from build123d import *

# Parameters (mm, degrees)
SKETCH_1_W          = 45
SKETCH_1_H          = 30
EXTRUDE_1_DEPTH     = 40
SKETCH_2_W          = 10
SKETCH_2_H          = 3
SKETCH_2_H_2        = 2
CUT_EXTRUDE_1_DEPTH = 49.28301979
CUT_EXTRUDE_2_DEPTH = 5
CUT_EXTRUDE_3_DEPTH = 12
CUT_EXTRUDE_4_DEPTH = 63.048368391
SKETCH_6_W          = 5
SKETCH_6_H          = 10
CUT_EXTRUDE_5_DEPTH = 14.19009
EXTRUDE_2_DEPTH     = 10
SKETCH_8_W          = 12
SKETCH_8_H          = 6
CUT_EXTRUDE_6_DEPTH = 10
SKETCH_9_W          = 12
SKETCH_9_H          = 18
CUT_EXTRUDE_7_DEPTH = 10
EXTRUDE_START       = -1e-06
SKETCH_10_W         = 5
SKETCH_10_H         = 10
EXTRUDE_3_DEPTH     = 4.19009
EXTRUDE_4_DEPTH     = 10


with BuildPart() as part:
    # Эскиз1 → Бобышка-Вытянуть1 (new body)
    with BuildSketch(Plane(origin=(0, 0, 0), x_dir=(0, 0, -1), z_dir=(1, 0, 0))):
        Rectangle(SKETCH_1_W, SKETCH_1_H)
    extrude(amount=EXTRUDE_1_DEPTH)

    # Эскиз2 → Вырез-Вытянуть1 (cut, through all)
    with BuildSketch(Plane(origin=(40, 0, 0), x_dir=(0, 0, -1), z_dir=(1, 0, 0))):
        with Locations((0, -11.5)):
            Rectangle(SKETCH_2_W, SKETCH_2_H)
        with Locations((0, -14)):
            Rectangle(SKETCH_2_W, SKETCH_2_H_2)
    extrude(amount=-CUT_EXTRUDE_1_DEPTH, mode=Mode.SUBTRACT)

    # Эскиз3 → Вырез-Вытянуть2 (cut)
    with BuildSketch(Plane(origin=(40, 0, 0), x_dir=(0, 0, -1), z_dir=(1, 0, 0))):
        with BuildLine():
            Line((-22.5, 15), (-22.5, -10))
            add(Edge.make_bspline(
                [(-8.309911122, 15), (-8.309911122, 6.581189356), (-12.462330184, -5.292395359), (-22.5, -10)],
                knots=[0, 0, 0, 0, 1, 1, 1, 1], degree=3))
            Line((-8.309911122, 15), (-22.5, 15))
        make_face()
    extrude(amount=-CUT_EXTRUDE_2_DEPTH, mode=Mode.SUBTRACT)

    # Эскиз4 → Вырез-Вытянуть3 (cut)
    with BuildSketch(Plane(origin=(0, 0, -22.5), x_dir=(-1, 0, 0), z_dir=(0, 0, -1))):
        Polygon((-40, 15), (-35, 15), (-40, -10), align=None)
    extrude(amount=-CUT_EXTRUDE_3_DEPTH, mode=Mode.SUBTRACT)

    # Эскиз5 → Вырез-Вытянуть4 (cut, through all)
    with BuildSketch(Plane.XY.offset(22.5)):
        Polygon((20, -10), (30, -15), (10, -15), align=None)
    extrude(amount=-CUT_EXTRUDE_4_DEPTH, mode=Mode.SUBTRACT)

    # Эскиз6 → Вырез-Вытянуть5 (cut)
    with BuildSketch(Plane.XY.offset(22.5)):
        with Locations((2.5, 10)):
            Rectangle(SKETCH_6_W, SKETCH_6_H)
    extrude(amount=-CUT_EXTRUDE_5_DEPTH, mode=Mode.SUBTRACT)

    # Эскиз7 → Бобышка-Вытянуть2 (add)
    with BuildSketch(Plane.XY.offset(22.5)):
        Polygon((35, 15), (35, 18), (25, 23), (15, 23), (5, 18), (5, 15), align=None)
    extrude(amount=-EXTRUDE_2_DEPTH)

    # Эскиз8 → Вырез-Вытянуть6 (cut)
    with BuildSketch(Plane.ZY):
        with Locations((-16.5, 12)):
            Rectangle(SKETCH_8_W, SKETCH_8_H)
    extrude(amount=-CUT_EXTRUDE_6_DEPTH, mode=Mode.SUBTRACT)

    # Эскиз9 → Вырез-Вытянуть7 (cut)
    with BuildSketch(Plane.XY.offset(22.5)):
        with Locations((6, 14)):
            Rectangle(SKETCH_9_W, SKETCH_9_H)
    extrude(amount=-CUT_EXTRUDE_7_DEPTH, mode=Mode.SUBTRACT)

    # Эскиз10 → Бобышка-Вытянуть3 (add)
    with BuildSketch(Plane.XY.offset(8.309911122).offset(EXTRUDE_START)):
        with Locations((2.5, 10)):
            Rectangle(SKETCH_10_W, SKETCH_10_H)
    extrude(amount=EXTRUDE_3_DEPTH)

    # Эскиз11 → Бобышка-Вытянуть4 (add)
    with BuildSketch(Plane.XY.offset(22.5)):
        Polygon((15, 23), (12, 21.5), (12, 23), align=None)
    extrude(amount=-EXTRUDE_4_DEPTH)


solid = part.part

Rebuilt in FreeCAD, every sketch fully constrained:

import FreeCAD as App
import Part
import Sketcher
from FreeCAD import Vector


def add_polygon(sketch, points):
    """Adds a closed chain of lines whose ends are joined by coincident constraints."""
    first, n = sketch.GeometryCount, len(points)
    for a, b in zip(points, points[1:] + points[:1]):
        sketch.addGeometry(Part.LineSegment(App.Vector(*a, 0), App.Vector(*b, 0)), False)
    for i in range(n):
        sketch.addConstraint(Sketcher.Constraint("Coincident", first + i, 2, first + (i + 1) % n, 1))

doc = App.newDocument("Part")
body = doc.addObject("PartDesign::Body", "Body")

sketch1 = doc.addObject("Sketcher::SketchObject", "Sketch")
body.addObject(sketch1)
sketch1.AttachmentSupport = (doc.YZ_Plane, [""])
sketch1.MapMode = "FlatFace"
add_polygon(sketch1, [(15, 22), (-15, 22), (-15, -22), (15, -22)])
sketch1.addConstraint(Sketcher.Constraint("Horizontal", 0))
sketch1.addConstraint(Sketcher.Constraint("Vertical", 1))
sketch1.addConstraint(Sketcher.Constraint("Horizontal", 2))
sketch1.addConstraint(Sketcher.Constraint("Vertical", 3))
sketch1.addConstraint(Sketcher.Constraint("Symmetric", 0, 2, 2, 2, -1, 1))
sketch1.addConstraint(Sketcher.Constraint("DistanceX", 0, 2, 0, 1, 30.0))
sketch1.addConstraint(Sketcher.Constraint("DistanceY", 1, 2, 1, 1, 45.0))
pad1 = doc.addObject("PartDesign::Pad", "Pad")
body.addObject(pad1)
pad1.Profile = sketch1
pad1.Length = 40

sketch2 = doc.addObject("Sketcher::SketchObject", "Sketch001")
body.addObject(sketch2)
sketch2.AttachmentSupport = (doc.YZ_Plane, [""])
sketch2.MapMode = "FlatFace"
sketch2.AttachmentOffset = App.Placement(Vector(0, 0, 40), App.Rotation())
add_polygon(sketch2, [(-10, 5), (-15, 5), (-15, -5), (-10, -5)])
sketch2.addConstraint(Sketcher.Constraint("Horizontal", 0))
sketch2.addConstraint(Sketcher.Constraint("Vertical", 1))
sketch2.addConstraint(Sketcher.Constraint("Horizontal", 2))
sketch2.addConstraint(Sketcher.Constraint("Vertical", 3))
sketch2.addConstraint(Sketcher.Constraint("DistanceX", 0, 2, 0, 1, 5.0))
sketch2.addConstraint(Sketcher.Constraint("DistanceY", 1, 2, 1, 1, 10.0))
sketch2.addConstraint(Sketcher.Constraint("DistanceX", 0, 2, -1, 1, 15.0))
sketch2.addConstraint(Sketcher.Constraint("DistanceY", -1, 1, 0, 2, 5.0))
pocket1 = doc.addObject("PartDesign::Pocket", "Pocket")
body.addObject(pocket1)
pocket1.Profile = sketch2
pocket1.Type = "ThroughAll"

sketch3 = doc.addObject("Sketcher::SketchObject", "Sketch002")
body.addObject(sketch3)
sketch3.AttachmentSupport = (doc.YZ_Plane, [""])
sketch3.MapMode = "FlatFace"
sketch3.AttachmentOffset = App.Placement(Vector(0, 0, 40), App.Rotation())
sketch3.addGeometry(Part.LineSegment(Vector(15, 22.5, 0), Vector(-10, 22.5, 0)), False)
sketch3.addGeometry(Part.BSplineCurve([Vector(15, 8.309911, 0), Vector(6.581189, 8.309911, 0), Vector(-5.292395, 12.46233, 0), Vector(-10, 22.5, 0)], [4, 4], [0, 1], False, 3, [1, 1, 1, 1], False), False)
sketch3.addGeometry(Part.LineSegment(Vector(15, 8.309911, 0), Vector(15, 22.5, 0)), False)
sketch3.addConstraint(Sketcher.Constraint("Block", 1))
sketch3.addConstraint(Sketcher.Constraint("Coincident", 0, 2, 1, 2))
sketch3.addConstraint(Sketcher.Constraint("Coincident", 1, 1, 2, 1))
sketch3.addConstraint(Sketcher.Constraint("Coincident", 2, 2, 0, 1))
sketch3.addConstraint(Sketcher.Constraint("Horizontal", 0))
sketch3.addConstraint(Sketcher.Constraint("Vertical", 2))
pocket2 = doc.addObject("PartDesign::Pocket", "Pocket001")
body.addObject(pocket2)
pocket2.Profile = sketch3
pocket2.Length = 5

sketch4 = doc.addObject("Sketcher::SketchObject", "Sketch003")
body.addObject(sketch4)
sketch4.AttachmentSupport = (doc.XY_Plane, [""])
sketch4.MapMode = "FlatFace"
sketch4.AttachmentOffset = App.Placement(Vector(0, 0, -22.5), App.Rotation())
add_polygon(sketch4, [(35, 15), (40, 15), (40, -10)])
sketch4.addConstraint(Sketcher.Constraint("Horizontal", 0))
sketch4.addConstraint(Sketcher.Constraint("Vertical", 1))
sketch4.addConstraint(Sketcher.Constraint("DistanceX", 0, 1, 0, 2, 5.0))
sketch4.addConstraint(Sketcher.Constraint("DistanceY", 1, 2, 1, 1, 25.0))
sketch4.addConstraint(Sketcher.Constraint("DistanceX", -1, 1, 0, 2, 40.0))
sketch4.addConstraint(Sketcher.Constraint("DistanceY", -1, 1, 0, 2, 15.0))
pocket3 = doc.addObject("PartDesign::Pocket", "Pocket002")
body.addObject(pocket3)
pocket3.Profile = sketch4
pocket3.Length = 12
pocket3.Reversed = True

sketch5 = doc.addObject("Sketcher::SketchObject", "Sketch004")
body.addObject(sketch5)
sketch5.AttachmentSupport = (doc.XY_Plane, [""])
sketch5.MapMode = "FlatFace"
sketch5.AttachmentOffset = App.Placement(Vector(0, 0, 22.5), App.Rotation())
add_polygon(sketch5, [(30, -15), (20, -10), (10, -15)])
sketch5.addConstraint(Sketcher.Constraint("Horizontal", 2))
sketch5.addConstraint(Sketcher.Constraint("Equal", 0, 1))
sketch5.addConstraint(Sketcher.Constraint("DistanceX", 2, 1, 2, 2, 20.0))
sketch5.addConstraint(Sketcher.Constraint("DistanceX", -1, 1, 0, 2, 20.0))
sketch5.addConstraint(Sketcher.Constraint("DistanceY", 0, 2, -1, 1, 10.0))
sketch5.addConstraint(Sketcher.Constraint("DistanceY", 1, 2, -1, 1, 15.0))
pocket4 = doc.addObject("PartDesign::Pocket", "Pocket003")
body.addObject(pocket4)
pocket4.Profile = sketch5
pocket4.Type = "ThroughAll"

sketch6 = doc.addObject("Sketcher::SketchObject", "Sketch005")
body.addObject(sketch6)
sketch6.AttachmentSupport = (doc.XY_Plane, [""])
sketch6.MapMode = "FlatFace"
sketch6.AttachmentOffset = App.Placement(Vector(0, 0, 22.5), App.Rotation())
add_polygon(sketch6, [(0, 15), (0, 5), (5, 5), (5, 15)])
sketch6.addConstraint(Sketcher.Constraint("Vertical", 0))
sketch6.addConstraint(Sketcher.Constraint("Horizontal", 1))
sketch6.addConstraint(Sketcher.Constraint("Vertical", 2))
sketch6.addConstraint(Sketcher.Constraint("Horizontal", 3))
sketch6.addConstraint(Sketcher.Constraint("PointOnObject", 0, 2, -2))
sketch6.addConstraint(Sketcher.Constraint("DistanceX", 1, 1, 1, 2, 5.0))
sketch6.addConstraint(Sketcher.Constraint("DistanceY", 0, 2, 0, 1, 10.0))
sketch6.addConstraint(Sketcher.Constraint("DistanceY", -1, 1, 0, 2, 5.0))
pocket5 = doc.addObject("PartDesign::Pocket", "Pocket004")
body.addObject(pocket5)
pocket5.Profile = sketch6
pocket5.Length = 14.19009

sketch7 = doc.addObject("Sketcher::SketchObject", "Sketch006")
body.addObject(sketch7)
sketch7.AttachmentSupport = (doc.XY_Plane, [""])
sketch7.MapMode = "FlatFace"
sketch7.AttachmentOffset = App.Placement(Vector(0, 0, 22.5), App.Rotation())
add_polygon(sketch7, [(35, 15), (35, 18), (25, 23), (15, 23), (5, 18), (5, 15)])
sketch7.addConstraint(Sketcher.Constraint("Vertical", 0))
sketch7.addConstraint(Sketcher.Constraint("Horizontal", 2))
sketch7.addConstraint(Sketcher.Constraint("Vertical", 4))
sketch7.addConstraint(Sketcher.Constraint("Horizontal", 5))
sketch7.addConstraint(Sketcher.Constraint("Horizontal", 0, 2, 3, 2))
sketch7.addConstraint(Sketcher.Constraint("Equal", 1, 3))
sketch7.addConstraint(Sketcher.Constraint("DistanceX", 2, 2, 2, 1, 10.0))
sketch7.addConstraint(Sketcher.Constraint("DistanceX", 5, 1, 5, 2, 30.0))
sketch7.addConstraint(Sketcher.Constraint("DistanceY", 0, 1, 0, 2, 3.0))
sketch7.addConstraint(Sketcher.Constraint("DistanceX", -1, 1, 0, 2, 35.0))
sketch7.addConstraint(Sketcher.Constraint("DistanceY", -1, 1, 0, 2, 18.0))
sketch7.addConstraint(Sketcher.Constraint("DistanceY", -1, 1, 1, 2, 23.0))
pad2 = doc.addObject("PartDesign::Pad", "Pad001")
body.addObject(pad2)
pad2.Profile = sketch7
pad2.Length = 10
pad2.Reversed = True

sketch8 = doc.addObject("Sketcher::SketchObject", "Sketch007")
body.addObject(sketch8)
sketch8.AttachmentSupport = (doc.YZ_Plane, [""])
sketch8.MapMode = "FlatFace"
add_polygon(sketch8, [(15, -22), (9, -22), (9, -10), (15, -10)])
sketch8.addConstraint(Sketcher.Constraint("Horizontal", 0))
sketch8.addConstraint(Sketcher.Constraint("Vertical", 1))
sketch8.addConstraint(Sketcher.Constraint("Horizontal", 2))
sketch8.addConstraint(Sketcher.Constraint("Vertical", 3))
sketch8.addConstraint(Sketcher.Constraint("DistanceX", 0, 2, 0, 1, 6.0))
sketch8.addConstraint(Sketcher.Constraint("DistanceY", 1, 1, 1, 2, 12.0))
sketch8.addConstraint(Sketcher.Constraint("DistanceX", -1, 1, 0, 2, 9.0))
sketch8.addConstraint(Sketcher.Constraint("DistanceY", 0, 2, -1, 1, 22.5))
pocket6 = doc.addObject("PartDesign::Pocket", "Pocket005")
body.addObject(pocket6)
pocket6.Profile = sketch8
pocket6.Length = 10
pocket6.Reversed = True

sketch9 = doc.addObject("Sketcher::SketchObject", "Sketch008")
body.addObject(sketch9)
sketch9.AttachmentSupport = (doc.XY_Plane, [""])
sketch9.MapMode = "FlatFace"
sketch9.AttachmentOffset = App.Placement(Vector(0, 0, 22.5), App.Rotation())
add_polygon(sketch9, [(0, 23), (0, 5), (12, 5), (12, 23)])
sketch9.addConstraint(Sketcher.Constraint("Vertical", 0))
sketch9.addConstraint(Sketcher.Constraint("Horizontal", 1))
sketch9.addConstraint(Sketcher.Constraint("Vertical", 2))
sketch9.addConstraint(Sketcher.Constraint("Horizontal", 3))
sketch9.addConstraint(Sketcher.Constraint("PointOnObject", 0, 2, -2))
sketch9.addConstraint(Sketcher.Constraint("DistanceX", 1, 1, 1, 2, 12.0))
sketch9.addConstraint(Sketcher.Constraint("DistanceY", 0, 2, 0, 1, 18.0))
sketch9.addConstraint(Sketcher.Constraint("DistanceY", -1, 1, 0, 2, 5.0))
pocket7 = doc.addObject("PartDesign::Pocket", "Pocket006")
body.addObject(pocket7)
pocket7.Profile = sketch9
pocket7.Length = 10

sketch10 = doc.addObject("Sketcher::SketchObject", "Sketch009")
body.addObject(sketch10)
sketch10.AttachmentSupport = (doc.XY_Plane, [""])
sketch10.MapMode = "FlatFace"
sketch10.AttachmentOffset = App.Placement(Vector(0, 0, 8.30991), App.Rotation())
add_polygon(sketch10, [(0, 15), (0, 5), (5, 5), (5, 15)])
sketch10.addConstraint(Sketcher.Constraint("Vertical", 0))
sketch10.addConstraint(Sketcher.Constraint("Horizontal", 1))
sketch10.addConstraint(Sketcher.Constraint("Vertical", 2))
sketch10.addConstraint(Sketcher.Constraint("Horizontal", 3))
sketch10.addConstraint(Sketcher.Constraint("PointOnObject", 0, 2, -2))
sketch10.addConstraint(Sketcher.Constraint("DistanceX", 1, 1, 1, 2, 5.0))
sketch10.addConstraint(Sketcher.Constraint("DistanceY", 0, 2, 0, 1, 10.0))
sketch10.addConstraint(Sketcher.Constraint("DistanceY", -1, 1, 0, 2, 5.0))
pad3 = doc.addObject("PartDesign::Pad", "Pad002")
body.addObject(pad3)
pad3.Profile = sketch10
pad3.Length = 4.19009

sketch11 = doc.addObject("Sketcher::SketchObject", "Sketch010")
body.addObject(sketch11)
sketch11.AttachmentSupport = (doc.XY_Plane, [""])
sketch11.MapMode = "FlatFace"
sketch11.AttachmentOffset = App.Placement(Vector(0, 0, 22.5), App.Rotation())
add_polygon(sketch11, [(12, 21.5), (15, 23), (12, 23)])
sketch11.addConstraint(Sketcher.Constraint("Horizontal", 1))
sketch11.addConstraint(Sketcher.Constraint("Vertical", 2))
sketch11.addConstraint(Sketcher.Constraint("DistanceX", 1, 2, 1, 1, 3.0))
sketch11.addConstraint(Sketcher.Constraint("DistanceY", 2, 2, 2, 1, 1.5))
sketch11.addConstraint(Sketcher.Constraint("DistanceX", -1, 1, 0, 2, 15.0))
sketch11.addConstraint(Sketcher.Constraint("DistanceY", -1, 1, 0, 2, 23.0))
pad4 = doc.addObject("PartDesign::Pad", "Pad003")
body.addObject(pad4)
pad4.Profile = sketch11
pad4.Length = 10
pad4.Reversed = True

doc.recompute()
